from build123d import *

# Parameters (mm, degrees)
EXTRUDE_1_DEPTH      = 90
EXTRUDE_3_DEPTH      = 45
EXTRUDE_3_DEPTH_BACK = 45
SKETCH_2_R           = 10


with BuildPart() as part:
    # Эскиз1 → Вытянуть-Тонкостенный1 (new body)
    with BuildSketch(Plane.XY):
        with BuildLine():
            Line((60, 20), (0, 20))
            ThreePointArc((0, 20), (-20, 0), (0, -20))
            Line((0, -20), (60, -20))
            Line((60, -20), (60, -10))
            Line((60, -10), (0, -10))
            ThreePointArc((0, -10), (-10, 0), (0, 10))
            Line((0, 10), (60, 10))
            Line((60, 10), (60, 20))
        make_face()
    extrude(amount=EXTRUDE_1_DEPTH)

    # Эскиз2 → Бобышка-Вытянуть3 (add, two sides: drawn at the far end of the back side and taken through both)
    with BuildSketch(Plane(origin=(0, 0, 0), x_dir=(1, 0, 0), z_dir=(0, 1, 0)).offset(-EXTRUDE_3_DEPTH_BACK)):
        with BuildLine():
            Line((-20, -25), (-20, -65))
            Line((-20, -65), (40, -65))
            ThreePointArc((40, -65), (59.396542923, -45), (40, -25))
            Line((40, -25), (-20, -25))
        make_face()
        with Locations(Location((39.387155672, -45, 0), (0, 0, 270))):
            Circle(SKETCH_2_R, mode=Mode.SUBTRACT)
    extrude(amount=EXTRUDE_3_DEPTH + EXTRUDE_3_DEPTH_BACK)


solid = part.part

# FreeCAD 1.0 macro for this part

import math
import FreeCAD as App
import Part
import Sketcher

V = App.Vector
Q = App.Units.Quantity

doc = App.newDocument("Part")
body = doc.addObject("PartDesign::Body", "Body")

sketch1 = body.newObject("Sketcher::SketchObject", "Sketch")
sketch1.AttachmentSupport = (doc.getObject("XY_Plane"), [""])
sketch1.MapMode = "FlatFace"
sketch1.addGeometry([
    Part.LineSegment(V(60, 20, 0), V(0, 20, 0)),
    Part.ArcOfCircle(Part.Circle(V(0, 0, 0), V(0, 0, 1), 20), math.radians(90), math.radians(270)),
    Part.LineSegment(V(0, -20, 0), V(60, -20, 0)),
    Part.LineSegment(V(60, -20, 0), V(60, -10, 0)),
    Part.LineSegment(V(60, -10, 0), V(0, -10, 0)),
    Part.ArcOfCircle(Part.Circle(V(0, 0, 0), V(0, 0, 1), 10), math.radians(90), math.radians(270)),
    Part.LineSegment(V(0, 10, 0), V(60, 10, 0)),
    Part.LineSegment(V(60, 10, 0), V(60, 20, 0)),
], False)
sketch1.addConstraint([
    Sketcher.Constraint("Tangent", 0, 2, 1, 1),
    Sketcher.Constraint("Tangent", 1, 2, 2, 1),
    Sketcher.Constraint("Coincident", 2, 2, 3, 1),
    Sketcher.Constraint("Coincident", 3, 2, 4, 1),
    Sketcher.Constraint("Tangent", 4, 2, 5, 2),
    Sketcher.Constraint("Tangent", 5, 1, 6, 1),
    Sketcher.Constraint("Coincident", 6, 2, 7, 1),
    Sketcher.Constraint("Coincident", 7, 2, 0, 1),
    Sketcher.Constraint("Horizontal", 0),
    Sketcher.Constraint("Horizontal", 2),
    Sketcher.Constraint("Vertical", 3),
    Sketcher.Constraint("Horizontal", 4),
    Sketcher.Constraint("Horizontal", 6),
    Sketcher.Constraint("Vertical", 7),
    Sketcher.Constraint("Coincident", 1, 3, -1, 1),
    Sketcher.Constraint("Coincident", 5, 3, -1, 1),
    Sketcher.Constraint("Vertical", 3, 2, 6, 2),
    Sketcher.Constraint("Radius", 1, Q("20 mm")),
    Sketcher.Constraint("Radius", 5, Q("10 mm")),
    Sketcher.Constraint("DistanceX", 0, 2, 0, 1, Q("60 mm")),
])
pad1 = body.newObject("PartDesign::Pad", "Pad")
pad1.Profile = sketch1
pad1.Length = 90

sketch2 = body.newObject("Sketcher::SketchObject", "Sketch001")
sketch2.AttachmentSupport = (doc.getObject("XZ_Plane"), [""])
sketch2.MapMode = "FlatFace"
sketch2.addGeometry([
    Part.LineSegment(V(-20, 25, 0), V(-20, 65, 0)),
    Part.LineSegment(V(-20, 65, 0), V(40, 65, 0)),
    Part.ArcOfCircle(Part.Circle(V(39.387156, 45, 0), V(0, 0, 1), 20.009387), math.radians(-88.24488), math.radians(88.24488)),
    Part.LineSegment(V(40, 25, 0), V(-20, 25, 0)),
    Part.Circle(V(39.387156, 45, 0), V(0, 0, 1), 10),
], False)
sketch2.addConstraint([
    Sketcher.Constraint("Coincident", 0, 2, 1, 1),
    Sketcher.Constraint("Coincident", 1, 2, 2, 2),
    Sketcher.Constraint("Coincident", 2, 1, 3, 1),
    Sketcher.Constraint("Coincident", 3, 2, 0, 1),
    Sketcher.Constraint("Vertical", 0),
    Sketcher.Constraint("Horizontal", 1),
    Sketcher.Constraint("Horizontal", 3),
    Sketcher.Constraint("Coincident", 4, 3, 2, 3),
    Sketcher.Constraint("Vertical", 1, 2, 2, 1),
    Sketcher.Constraint("Diameter", 4, Q("20 mm")),
    Sketcher.Constraint("DistanceX", 1, 1, 1, 2, Q("60 mm")),
    Sketcher.Constraint("DistanceY", 0, 1, 0, 2, Q("40 mm")),
    Sketcher.Constraint("DistanceY", -1, 1, 2, 3, Q("45 mm")),
    Sketcher.Constraint("DistanceX", 0, 2, -1, 1, Q("20 mm")),
    Sketcher.Constraint("Radius", 2, Q("20.009387 mm")),
])
pad2 = body.newObject("PartDesign::Pad", "Pad001")
pad2.Profile = sketch2
pad2.Type = "TwoLengths"
pad2.Length = 45
pad2.Length2 = 45
pad2.Reversed = True

doc.recompute()
